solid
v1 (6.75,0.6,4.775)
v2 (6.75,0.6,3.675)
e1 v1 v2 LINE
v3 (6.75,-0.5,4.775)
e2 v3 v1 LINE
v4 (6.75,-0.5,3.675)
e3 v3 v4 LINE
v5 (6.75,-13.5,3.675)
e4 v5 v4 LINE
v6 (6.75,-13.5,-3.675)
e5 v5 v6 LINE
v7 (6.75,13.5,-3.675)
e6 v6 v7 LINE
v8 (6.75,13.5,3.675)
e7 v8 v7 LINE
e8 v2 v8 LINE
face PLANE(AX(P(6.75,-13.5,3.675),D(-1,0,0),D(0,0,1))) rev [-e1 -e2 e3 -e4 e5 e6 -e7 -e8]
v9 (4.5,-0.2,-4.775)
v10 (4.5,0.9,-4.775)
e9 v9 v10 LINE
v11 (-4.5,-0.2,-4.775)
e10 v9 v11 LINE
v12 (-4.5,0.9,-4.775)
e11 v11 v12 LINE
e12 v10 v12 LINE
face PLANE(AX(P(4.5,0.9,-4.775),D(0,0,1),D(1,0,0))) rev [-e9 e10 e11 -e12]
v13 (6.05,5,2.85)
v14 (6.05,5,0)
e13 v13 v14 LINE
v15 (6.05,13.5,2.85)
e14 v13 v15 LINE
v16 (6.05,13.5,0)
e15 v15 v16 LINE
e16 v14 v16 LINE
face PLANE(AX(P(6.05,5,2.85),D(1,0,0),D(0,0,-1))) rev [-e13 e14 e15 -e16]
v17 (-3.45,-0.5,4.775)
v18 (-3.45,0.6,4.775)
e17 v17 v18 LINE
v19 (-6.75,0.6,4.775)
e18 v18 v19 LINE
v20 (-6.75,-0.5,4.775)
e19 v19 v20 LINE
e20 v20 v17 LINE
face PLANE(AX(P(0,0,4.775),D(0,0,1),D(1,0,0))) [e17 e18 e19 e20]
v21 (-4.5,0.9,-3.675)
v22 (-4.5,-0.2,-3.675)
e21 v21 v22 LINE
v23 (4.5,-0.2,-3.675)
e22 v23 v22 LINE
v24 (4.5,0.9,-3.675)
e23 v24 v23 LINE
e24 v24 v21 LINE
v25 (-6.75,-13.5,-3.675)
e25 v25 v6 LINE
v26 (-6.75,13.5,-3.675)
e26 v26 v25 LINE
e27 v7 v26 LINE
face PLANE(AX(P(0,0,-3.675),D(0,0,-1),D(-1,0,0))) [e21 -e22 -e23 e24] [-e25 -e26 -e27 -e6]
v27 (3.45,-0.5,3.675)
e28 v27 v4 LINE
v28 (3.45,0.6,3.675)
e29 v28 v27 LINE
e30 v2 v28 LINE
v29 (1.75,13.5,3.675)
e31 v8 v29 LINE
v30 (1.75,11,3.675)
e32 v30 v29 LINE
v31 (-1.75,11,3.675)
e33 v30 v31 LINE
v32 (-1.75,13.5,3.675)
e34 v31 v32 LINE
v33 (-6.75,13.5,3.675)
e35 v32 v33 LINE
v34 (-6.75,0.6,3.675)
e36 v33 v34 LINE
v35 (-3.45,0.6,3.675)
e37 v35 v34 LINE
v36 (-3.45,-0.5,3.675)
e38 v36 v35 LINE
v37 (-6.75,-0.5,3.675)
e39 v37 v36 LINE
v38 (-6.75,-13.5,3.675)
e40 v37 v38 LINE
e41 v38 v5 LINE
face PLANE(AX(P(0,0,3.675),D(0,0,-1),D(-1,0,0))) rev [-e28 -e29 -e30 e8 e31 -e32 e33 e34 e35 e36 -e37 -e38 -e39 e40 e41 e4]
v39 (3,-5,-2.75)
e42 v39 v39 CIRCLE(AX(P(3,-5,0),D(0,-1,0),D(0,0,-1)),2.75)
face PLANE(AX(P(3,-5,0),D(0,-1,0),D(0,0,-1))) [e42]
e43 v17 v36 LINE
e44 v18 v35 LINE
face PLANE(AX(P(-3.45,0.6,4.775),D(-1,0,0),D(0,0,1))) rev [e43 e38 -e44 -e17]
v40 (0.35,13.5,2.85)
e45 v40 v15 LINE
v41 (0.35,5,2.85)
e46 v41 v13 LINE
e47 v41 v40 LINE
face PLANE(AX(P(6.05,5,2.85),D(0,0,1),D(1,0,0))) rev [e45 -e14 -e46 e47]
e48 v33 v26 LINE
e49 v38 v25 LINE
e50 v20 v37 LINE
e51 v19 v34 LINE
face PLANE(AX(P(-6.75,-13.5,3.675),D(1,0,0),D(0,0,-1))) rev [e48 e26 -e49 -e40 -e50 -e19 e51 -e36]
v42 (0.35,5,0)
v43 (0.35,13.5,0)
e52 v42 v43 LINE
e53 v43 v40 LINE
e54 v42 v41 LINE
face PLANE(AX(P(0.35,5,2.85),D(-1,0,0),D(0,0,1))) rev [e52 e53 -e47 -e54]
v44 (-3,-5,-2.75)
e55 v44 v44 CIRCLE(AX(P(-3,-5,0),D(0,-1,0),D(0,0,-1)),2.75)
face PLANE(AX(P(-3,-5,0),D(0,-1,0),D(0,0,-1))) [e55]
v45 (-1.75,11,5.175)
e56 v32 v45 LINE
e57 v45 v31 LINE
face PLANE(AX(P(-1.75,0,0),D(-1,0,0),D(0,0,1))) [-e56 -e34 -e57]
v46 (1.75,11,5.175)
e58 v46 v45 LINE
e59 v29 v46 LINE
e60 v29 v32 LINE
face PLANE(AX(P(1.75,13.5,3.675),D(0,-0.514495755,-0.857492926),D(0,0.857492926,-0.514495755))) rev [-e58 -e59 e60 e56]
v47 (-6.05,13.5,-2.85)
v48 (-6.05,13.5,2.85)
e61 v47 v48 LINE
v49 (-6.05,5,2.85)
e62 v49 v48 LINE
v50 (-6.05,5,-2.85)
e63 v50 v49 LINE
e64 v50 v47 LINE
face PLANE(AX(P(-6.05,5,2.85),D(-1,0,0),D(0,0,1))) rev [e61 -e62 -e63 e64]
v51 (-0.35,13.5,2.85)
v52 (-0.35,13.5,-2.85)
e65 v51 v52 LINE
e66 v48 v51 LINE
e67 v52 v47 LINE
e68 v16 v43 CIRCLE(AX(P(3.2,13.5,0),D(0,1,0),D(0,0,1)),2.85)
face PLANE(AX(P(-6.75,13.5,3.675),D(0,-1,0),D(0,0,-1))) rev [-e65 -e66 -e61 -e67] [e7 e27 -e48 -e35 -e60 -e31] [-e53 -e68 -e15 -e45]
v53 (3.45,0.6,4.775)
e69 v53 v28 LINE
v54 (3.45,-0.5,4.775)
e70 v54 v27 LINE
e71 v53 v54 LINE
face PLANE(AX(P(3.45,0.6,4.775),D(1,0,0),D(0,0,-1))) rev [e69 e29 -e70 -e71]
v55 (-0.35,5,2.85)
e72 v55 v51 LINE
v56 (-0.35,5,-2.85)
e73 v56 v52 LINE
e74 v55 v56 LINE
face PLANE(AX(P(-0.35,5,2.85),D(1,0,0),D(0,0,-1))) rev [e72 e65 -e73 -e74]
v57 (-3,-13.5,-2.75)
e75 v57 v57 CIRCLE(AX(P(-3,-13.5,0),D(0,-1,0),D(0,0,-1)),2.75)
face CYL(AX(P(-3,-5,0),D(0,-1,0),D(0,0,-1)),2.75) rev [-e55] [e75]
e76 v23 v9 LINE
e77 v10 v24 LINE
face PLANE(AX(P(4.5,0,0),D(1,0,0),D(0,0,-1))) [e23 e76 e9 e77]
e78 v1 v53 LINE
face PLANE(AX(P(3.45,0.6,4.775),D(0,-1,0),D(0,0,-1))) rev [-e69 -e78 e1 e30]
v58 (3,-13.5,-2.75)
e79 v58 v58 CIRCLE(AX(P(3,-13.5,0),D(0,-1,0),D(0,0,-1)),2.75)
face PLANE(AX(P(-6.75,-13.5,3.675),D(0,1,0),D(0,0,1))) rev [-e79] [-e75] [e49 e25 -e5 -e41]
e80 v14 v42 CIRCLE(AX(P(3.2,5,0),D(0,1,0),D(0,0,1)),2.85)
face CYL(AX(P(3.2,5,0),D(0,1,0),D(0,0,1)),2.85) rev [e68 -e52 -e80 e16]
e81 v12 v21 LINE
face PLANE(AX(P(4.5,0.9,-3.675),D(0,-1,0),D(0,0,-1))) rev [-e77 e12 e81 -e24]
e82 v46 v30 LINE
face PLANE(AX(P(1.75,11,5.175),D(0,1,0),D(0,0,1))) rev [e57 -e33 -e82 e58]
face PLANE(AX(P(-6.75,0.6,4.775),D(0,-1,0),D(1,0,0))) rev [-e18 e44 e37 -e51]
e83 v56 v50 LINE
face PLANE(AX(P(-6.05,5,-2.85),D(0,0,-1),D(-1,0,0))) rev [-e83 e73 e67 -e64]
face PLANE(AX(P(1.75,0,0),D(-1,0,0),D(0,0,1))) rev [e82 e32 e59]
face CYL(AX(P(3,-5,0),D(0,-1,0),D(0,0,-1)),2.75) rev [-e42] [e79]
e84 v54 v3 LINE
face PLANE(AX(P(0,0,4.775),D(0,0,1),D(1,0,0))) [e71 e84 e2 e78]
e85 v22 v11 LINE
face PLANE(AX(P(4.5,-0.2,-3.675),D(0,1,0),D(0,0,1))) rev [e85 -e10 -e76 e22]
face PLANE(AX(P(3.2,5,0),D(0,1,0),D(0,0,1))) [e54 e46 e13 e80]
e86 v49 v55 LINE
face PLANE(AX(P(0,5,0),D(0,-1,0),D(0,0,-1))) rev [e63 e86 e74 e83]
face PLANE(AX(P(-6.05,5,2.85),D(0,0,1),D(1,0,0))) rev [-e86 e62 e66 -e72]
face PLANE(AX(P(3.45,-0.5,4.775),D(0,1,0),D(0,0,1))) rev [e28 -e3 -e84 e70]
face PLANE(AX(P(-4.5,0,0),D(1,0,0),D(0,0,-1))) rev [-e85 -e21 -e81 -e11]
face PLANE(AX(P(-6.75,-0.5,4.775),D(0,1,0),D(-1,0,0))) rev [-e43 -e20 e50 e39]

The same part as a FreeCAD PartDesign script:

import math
import FreeCAD as App
import Part
import Sketcher
from FreeCAD import Vector

doc = App.newDocument("Part")
params = doc.addObject("Spreadsheet::Sheet", "Params")
for row, (alias, value) in enumerate([
    ("sketch1_height", "27 mm"),
    ("sketch1_width", "13.5 mm"),
    ("pad1_length", "7.35 mm"),
    ("sketch2_diameter", "5.5 mm"),
    ("pocket1_length", "8.5 mm"),
    ("sketch3_radius", "2.85 mm"),
    ("pocket2_length", "8.5 mm"),
    ("sketch4_width", "2.5 mm"),
    ("sketch4_height", "1.5 mm"),
    ("pad2_length", "3.5 mm"),
    ("sketch5_width", "1.1 mm"),
    ("pad3_length", "9 mm"),
    ("sketch6_width", "3.3 mm"),
    ("sketch6_height", "1.1 mm"),
    ("pad4_length", "1.1 mm"),
], start=1):
    params.set(f"A{row}", alias)
    params.set(f"B{row}", "=" + value)
    params.setAlias(f"B{row}", alias)

body = doc.addObject("PartDesign::Body", "Body")

sketch1 = doc.addObject("Sketcher::SketchObject", "Sketch")
body.addObject(sketch1)
sketch1.AttachmentSupport = (doc.XY_Plane, [""])
sketch1.MapMode = "FlatFace"
sketch1.addGeometry([
    Part.LineSegment(Vector(-6.75, 13.5, 0), Vector(-6.75, -13.5, 0)),
    Part.LineSegment(Vector(-6.75, -13.5, 0), Vector(6.75, -13.5, 0)),
    Part.LineSegment(Vector(6.75, -13.5, 0), Vector(6.75, 13.5, 0)),
    Part.LineSegment(Vector(6.75, 13.5, 0), Vector(-6.75, 13.5, 0)),
], False)
sketch1.addConstraint([
    Sketcher.Constraint("Coincident", 0, 2, 1, 1),
    Sketcher.Constraint("Coincident", 1, 2, 2, 1),
    Sketcher.Constraint("Coincident", 2, 2, 3, 1),
    Sketcher.Constraint("Coincident", 3, 2, 0, 1),
    Sketcher.Constraint("Vertical", 0),
    Sketcher.Constraint("Horizontal", 1),
    Sketcher.Constraint("Vertical", 2),
    Sketcher.Constraint("Horizontal", 3),
    Sketcher.Constraint("Symmetric", 0, 2, 2, 2, -1, 1),
    Sketcher.Constraint("DistanceY", 0, 2, 0, 1, 27.0),
    Sketcher.Constraint("DistanceX", 1, 1, 1, 2, 13.5),
])
sketch1.setExpression("Constraints[9]", "Params.sketch1_height")
sketch1.setExpression("Constraints[10]", "Params.sketch1_width")
pad1 = doc.addObject("PartDesign::Pad", "Pad")
body.addObject(pad1)
pad1.Profile = sketch1
pad1.setExpression("Length", "Params.pad1_length")
pad1.Midplane = True

sketch2 = doc.addObject("Sketcher::SketchObject", "Sketch001")
body.addObject(sketch2)
sketch2.AttachmentSupport = (doc.XZ_Plane, [""])
sketch2.MapMode = "FlatFace"
sketch2.AttachmentOffset = App.Placement(Vector(0, 0, 13.5), App.Rotation())
sketch2.addGeometry([
    Part.Circle(Vector(-3, 0, 0), Vector(0, 0, 1), 2.75),
    Part.Circle(Vector(3, 0, 0), Vector(0, 0, 1), 2.75),
], False)
sketch2.addConstraint([
    Sketcher.Constraint("Equal", 0, 1),
    Sketcher.Constraint("Symmetric", 0, 3, 1, 3, -1, 1),
    Sketcher.Constraint("PointOnObject", 0, 3, -1),
    Sketcher.Constraint("Diameter", 0, 5.5),
    Sketcher.Constraint("DistanceX", 0, 3, -1, 1, 3.0),
])
sketch2.setExpression("Constraints[3]", "Params.sketch2_diameter")
pocket1 = doc.addObject("PartDesign::Pocket", "Pocket")
body.addObject(pocket1)
pocket1.Profile = sketch2
pocket1.setExpression("Length", "Params.pocket1_length")

sketch3 = doc.addObject("Sketcher::SketchObject", "Sketch002")
body.addObject(sketch3)
sketch3.AttachmentSupport = (doc.XZ_Plane, [""])
sketch3.MapMode = "FlatFace"
sketch3.AttachmentOffset = App.Placement(Vector(0, 0, -13.5), App.Rotation())
sketch3.addGeometry([
    Part.LineSegment(Vector(-6.05, -2.85, 0), Vector(-6.05, 2.85, 0)),
    Part.LineSegment(Vector(-6.05, 2.85, 0), Vector(-0.35, 2.85, 0)),
    Part.LineSegment(Vector(-0.35, 2.85, 0), Vector(-0.35, -2.85, 0)),
    Part.LineSegment(Vector(-0.35, -2.85, 0), Vector(-6.05, -2.85, 0)),
    Part.LineSegment(Vector(0.35, 2.85, 0), Vector(6.05, 2.85, 0)),
    Part.LineSegment(Vector(6.05, 2.85, 0), Vector(6.05, 0, 0)),
    Part.ArcOfCircle(Part.Circle(Vector(3.2, 0, 0), Vector(0, 0, 1), 2.85), math.radians(180), math.radians(360)),
    Part.LineSegment(Vector(0.35, 0, 0), Vector(0.35, 2.85, 0)),
], False)
sketch3.addConstraint([
    Sketcher.Constraint("Coincident", 0, 2, 1, 1),
    Sketcher.Constraint("Coincident", 1, 2, 2, 1),
    Sketcher.Constraint("Coincident", 2, 2, 3, 1),
    Sketcher.Constraint("Coincident", 3, 2, 0, 1),
    Sketcher.Constraint("Coincident", 4, 2, 5, 1),
    Sketcher.Constraint("Tangent", 5, 2, 6, 2),
    Sketcher.Constraint("Tangent", 6, 1, 7, 1),
    Sketcher.Constraint("Coincident", 7, 2, 4, 1),
    Sketcher.Constraint("Vertical", 0),
    Sketcher.Constraint("Horizontal", 1),
    Sketcher.Constraint("Vertical", 2),
    Sketcher.Constraint("Horizontal", 3),
    Sketcher.Constraint("Horizontal", 4),
    Sketcher.Constraint("Vertical", 5),
    Sketcher.Constraint("Vertical", 7),
    Sketcher.Constraint("Symmetric", 3, 2, 4, 2, -1, 1),
    Sketcher.Constraint("Symmetric", 1, 2, 7, 2, -2),
    Sketcher.Constraint("PointOnObject", 6, 3, -1),
    Sketcher.Constraint("Equal", 4, 0),
    Sketcher.Constraint("Radius", 6, 2.85),
    Sketcher.Constraint("DistanceX", -1, 1, 6, 3, 3.2),
])
sketch3.setExpression("Constraints[19]", "Params.sketch3_radius")
pocket2 = doc.addObject("PartDesign::Pocket", "Pocket001")
body.addObject(pocket2)
pocket2.Profile = sketch3
pocket2.setExpression("Length", "Params.pocket2_length")
pocket2.Reversed = True

sketch4 = doc.addObject("Sketcher::SketchObject", "Sketch003")
body.addObject(sketch4)
sketch4.AttachmentSupport = (doc.YZ_Plane, [""])
sketch4.MapMode = "FlatFace"
sketch4.addGeometry([
    Part.LineSegment(Vector(13.5, 3.675, 0), Vector(11, 5.175, 0)),
    Part.LineSegment(Vector(11, 5.175, 0), Vector(11, 3.675, 0)),
    Part.LineSegment(Vector(11, 3.675, 0), Vector(13.5, 3.675, 0)),
], False)
sketch4.addConstraint([
    Sketcher.Constraint("Coincident", 0, 2, 1, 1),
    Sketcher.Constraint("Coincident", 1, 2, 2, 1),
    Sketcher.Constraint("Coincident", 2, 2, 0, 1),
    Sketcher.Constraint("Vertical", 1),
    Sketcher.Constraint("Horizontal", 2),
    Sketcher.Constraint("DistanceX", 2, 1, 2, 2, 2.5),
    Sketcher.Constraint("DistanceY", 1, 2, 1, 1, 1.5),
    Sketcher.Constraint("DistanceX", -1, 1, 0, 2, 11.0),
    Sketcher.Constraint("DistanceY", -1, 1, 0, 2, 5.175),
])
sketch4.setExpression("Constraints[5]", "Params.sketch4_width")
sketch4.setExpression("Constraints[6]", "Params.sketch4_height")
pad2 = doc.addObject("PartDesign::Pad", "Pad001")
body.addObject(pad2)
pad2.Profile = sketch4
pad2.setExpression("Length", "Params.pad2_length")
pad2.Midplane = True

sketch5 = doc.addObject("Sketcher::SketchObject", "Sketch004")
body.addObject(sketch5)
sketch5.AttachmentSupport = (doc.YZ_Plane, [""])
sketch5.MapMode = "FlatFace"
sketch5.addGeometry([
    Part.LineSegment(Vector(0.9, -3.675, 0), Vector(-0.2, -3.675, 0)),
    Part.LineSegment(Vector(-0.2, -3.675, 0), Vector(-0.2, -4.775, 0)),
    Part.LineSegment(Vector(-0.2, -4.775, 0), Vector(0.9, -4.775, 0)),
    Part.LineSegment(Vector(0.9, -4.775, 0), Vector(0.9, -3.675, 0)),
], False)
sketch5.addConstraint([
    Sketcher.Constraint("Coincident", 0, 2, 1, 1),
    Sketcher.Constraint("Coincident", 1, 2, 2, 1),
    Sketcher.Constraint("Coincident", 2, 2, 3, 1),
    Sketcher.Constraint("Coincident", 3, 2, 0, 1),
    Sketcher.Constraint("Horizontal", 0),
    Sketcher.Constraint("Vertical", 1),
    Sketcher.Constraint("Horizontal", 2),
    Sketcher.Constraint("Vertical", 3),
    Sketcher.Constraint("Equal", 2, 1),
    Sketcher.Constraint("DistanceX", 0, 2, 0, 1, 1.1),
    Sketcher.Constraint("DistanceX", 0, 2, -1, 1, 0.2),
    Sketcher.Constraint("DistanceY", 0, 2, -1, 1, 3.675),
])
sketch5.setExpression("Constraints[9]", "Params.sketch5_width")
pad3 = doc.addObject("PartDesign::Pad", "Pad002")
body.addObject(pad3)
pad3.Profile = sketch5
pad3.setExpression("Length", "Params.pad3_length")
pad3.Midplane = True

sketch6 = doc.addObject("Sketcher::SketchObject", "Sketch005")
body.addObject(sketch6)
sketch6.AttachmentSupport = (doc.XY_Plane, [""])
sketch6.MapMode = "FlatFace"
sketch6.AttachmentOffset = App.Placement(Vector(0, 0, 3.675), App.Rotation())
sketch6.addGeometry([
    Part.LineSegment(Vector(-6.75, 0.6, 0), Vector(-6.75, -0.5, 0)),
    Part.LineSegment(Vector(-6.75, -0.5, 0), Vector(-3.45, -0.5, 0)),
    Part.LineSegment(Vector(-3.45, -0.5, 0), Vector(-3.45, 0.6, 0)),
    Part.LineSegment(Vector(-3.45, 0.6, 0), Vector(-6.75, 0.6, 0)),
    Part.LineSegment(Vector(3.45, 0.6, 0), Vector(3.45, -0.5, 0)),
    Part.LineSegment(Vector(3.45, -0.5, 0), Vector(6.75, -0.5, 0)),
    Part.LineSegment(Vector(6.75, -0.5, 0), Vector(6.75, 0.6, 0)),
    Part.LineSegment(Vector(6.75, 0.6, 0), Vector(3.45, 0.6, 0)),
], False)
sketch6.addConstraint([
    Sketcher.Constraint("Coincident", 0, 2, 1, 1),
    Sketcher.Constraint("Coincident", 1, 2, 2, 1),
    Sketcher.Constraint("Coincident", 2, 2, 3, 1),
    Sketcher.Constraint("Coincident", 3, 2, 0, 1),
    Sketcher.Constraint("Coincident", 4, 2, 5, 1),
    Sketcher.Constraint("Coincident", 5, 2, 6, 1),
    Sketcher.Constraint("Coincident", 6, 2, 7, 1),
    Sketcher.Constraint("Coincident", 7, 2, 4, 1),
    Sketcher.Constraint("Vertical", 0),
    Sketcher.Constraint("Horizontal", 1),
    Sketcher.Constraint("Vertical", 2),
    Sketcher.Constraint("Horizontal", 3),
    Sketcher.Constraint("Vertical", 4),
    Sketcher.Constraint("Horizontal", 5),
    Sketcher.Constraint("Vertical", 6),
    Sketcher.Constraint("Horizontal", 7),
    Sketcher.Constraint("Symmetric", 1, 2, 4, 2, -2),
    Sketcher.Constraint("Symmetric", 3, 2, 6, 2, -2),
    Sketcher.Constraint("DistanceX", 1, 1, 1, 2, 3.3),
    Sketcher.Constraint("DistanceY", 0, 2, 0, 1, 1.1),
    Sketcher.Constraint("DistanceY", 0, 2, -1, 1, 0.5),
    Sketcher.Constraint("DistanceX", 1, 2, 4, 2, 6.9),
])
sketch6.setExpression("Constraints[18]", "Params.sketch6_width")
sketch6.setExpression("Constraints[19]", "Params.sketch6_height")
pad4 = doc.addObject("PartDesign::Pad", "Pad003")
body.addObject(pad4)
pad4.Profile = sketch6
pad4.setExpression("Length", "Params.pad4_length")

doc.recompute()
